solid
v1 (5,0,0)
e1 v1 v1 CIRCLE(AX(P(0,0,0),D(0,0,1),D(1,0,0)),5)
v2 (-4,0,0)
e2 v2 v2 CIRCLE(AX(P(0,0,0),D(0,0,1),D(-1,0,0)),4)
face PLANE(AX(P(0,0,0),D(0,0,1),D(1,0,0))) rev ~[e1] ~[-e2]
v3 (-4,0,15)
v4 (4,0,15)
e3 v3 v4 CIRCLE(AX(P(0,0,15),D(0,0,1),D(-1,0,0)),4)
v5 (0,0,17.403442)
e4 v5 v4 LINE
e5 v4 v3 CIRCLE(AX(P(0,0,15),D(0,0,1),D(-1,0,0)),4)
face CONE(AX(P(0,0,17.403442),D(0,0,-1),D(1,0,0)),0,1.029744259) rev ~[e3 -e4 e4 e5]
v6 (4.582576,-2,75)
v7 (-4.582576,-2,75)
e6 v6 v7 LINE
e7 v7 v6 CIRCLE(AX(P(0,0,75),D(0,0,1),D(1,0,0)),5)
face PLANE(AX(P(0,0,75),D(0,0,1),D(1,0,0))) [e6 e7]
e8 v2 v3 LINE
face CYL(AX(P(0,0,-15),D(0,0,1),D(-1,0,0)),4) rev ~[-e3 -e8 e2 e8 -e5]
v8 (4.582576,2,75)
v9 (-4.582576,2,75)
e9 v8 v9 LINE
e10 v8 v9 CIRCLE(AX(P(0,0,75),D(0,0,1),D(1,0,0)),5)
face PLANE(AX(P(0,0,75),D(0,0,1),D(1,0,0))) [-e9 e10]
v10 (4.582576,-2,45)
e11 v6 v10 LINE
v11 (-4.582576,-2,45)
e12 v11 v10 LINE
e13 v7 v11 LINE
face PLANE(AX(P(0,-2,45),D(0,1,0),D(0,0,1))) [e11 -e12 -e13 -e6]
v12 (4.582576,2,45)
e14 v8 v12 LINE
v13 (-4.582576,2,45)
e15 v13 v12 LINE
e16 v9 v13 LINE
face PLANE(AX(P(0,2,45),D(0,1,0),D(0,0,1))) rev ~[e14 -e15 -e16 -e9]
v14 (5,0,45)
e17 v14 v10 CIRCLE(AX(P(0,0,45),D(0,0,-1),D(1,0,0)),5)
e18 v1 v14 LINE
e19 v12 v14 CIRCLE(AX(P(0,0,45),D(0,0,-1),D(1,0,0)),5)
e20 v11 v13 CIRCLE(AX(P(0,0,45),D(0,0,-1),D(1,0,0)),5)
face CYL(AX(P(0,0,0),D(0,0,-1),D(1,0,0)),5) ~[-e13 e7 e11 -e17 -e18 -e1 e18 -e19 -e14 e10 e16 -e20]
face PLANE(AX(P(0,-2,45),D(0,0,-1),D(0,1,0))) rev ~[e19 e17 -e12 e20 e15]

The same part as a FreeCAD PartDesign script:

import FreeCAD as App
import Part
import Sketcher
from FreeCAD import Vector
Q = App.Units.Quantity


def add_polygon(sketch, points):
    """Adds a closed chain of lines whose ends are joined by coincident constraints."""
    first, n = sketch.GeometryCount, len(points)
    for a, b in zip(points, points[1:] + points[:1]):
        sketch.addGeometry(Part.LineSegment(App.Vector(*a, 0), App.Vector(*b, 0)), False)
    for i in range(n):
        sketch.addConstraint(Sketcher.Constraint("Coincident", first + i, 2, first + (i + 1) % n, 1))

doc = App.newDocument("Part")
body = doc.addObject("PartDesign::Body", "Body")

# Sketch on XY plane
sketch1 = doc.addObject("Sketcher::SketchObject", "Sketch")
body.addObject(sketch1)
sketch1.AttachmentSupport = (doc.XY_Plane, [""])
sketch1.MapMode = "FlatFace"
sketch1.addGeometry(Part.Circle(Vector(0, 0, 0), Vector(0, 0, 1), 5), False)
sketch1.addConstraint([
    Sketcher.Constraint("Coincident", 0, 3, -1, 1),
    Sketcher.Constraint("Diameter", 0, Q("10 mm")),
])
pad1 = doc.addObject("PartDesign::Pad", "Pad")
body.addObject(pad1)
pad1.Profile = sketch1
pad1.Length = 75

# Sketch on XY plane
sketch2 = doc.addObject("Sketcher::SketchObject", "Sketch001")
body.addObject(sketch2)
sketch2.AttachmentSupport = (doc.XY_Plane, [""])
sketch2.MapMode = "FlatFace"
sketch2.addGeometry(Part.Circle(Vector(0, 0, 0), Vector(0, 0, 1), 4), False)
sketch2.addConstraint([
    Sketcher.Constraint("Coincident", 0, 3, -1, 1),
    Sketcher.Constraint("Diameter", 0, Q("8 mm")),
])
doc.recompute()
hole = doc.addObject("PartDesign::Hole", "Hole")
body.addObject(hole)
hole.Profile = sketch2
hole.ThreadType = "None"
hole.Diameter = 8
hole.DepthType = "Dimension"
hole.Depth = 15
hole.DrillPoint = "Angled"
hole.DrillPointAngle = 118
hole.Reversed = True

# Sketch on YZ plane
sketch3 = doc.addObject("Sketcher::SketchObject", "Sketch002")
body.addObject(sketch3)
sketch3.AttachmentSupport = (doc.YZ_Plane, [""])
sketch3.MapMode = "FlatFace"
add_polygon(sketch3, [(-2, 75), (-2, 45), (2, 45), (2, 75)])  # lines 0-3
sketch3.addConstraint([
    Sketcher.Constraint("Vertical", 0),
    Sketcher.Constraint("Horizontal", 1),
    Sketcher.Constraint("Vertical", 2),
    Sketcher.Constraint("Horizontal", 3),
    Sketcher.Constraint("DistanceX", 1, 1, 1, 2, Q("4 mm")),
    Sketcher.Constraint("DistanceY", 0, 2, 0, 1, Q("30 mm")),
    Sketcher.Constraint("DistanceX", 0, 2, -1, 1, Q("2 mm")),
    Sketcher.Constraint("DistanceY", -1, 1, 0, 2, Q("45 mm")),
])
pocket1 = doc.addObject("PartDesign::Pocket", "Pocket")
body.addObject(pocket1)
pocket1.Profile = sketch3
pocket1.Length = 25
pocket1.Midplane = True

doc.recompute()
